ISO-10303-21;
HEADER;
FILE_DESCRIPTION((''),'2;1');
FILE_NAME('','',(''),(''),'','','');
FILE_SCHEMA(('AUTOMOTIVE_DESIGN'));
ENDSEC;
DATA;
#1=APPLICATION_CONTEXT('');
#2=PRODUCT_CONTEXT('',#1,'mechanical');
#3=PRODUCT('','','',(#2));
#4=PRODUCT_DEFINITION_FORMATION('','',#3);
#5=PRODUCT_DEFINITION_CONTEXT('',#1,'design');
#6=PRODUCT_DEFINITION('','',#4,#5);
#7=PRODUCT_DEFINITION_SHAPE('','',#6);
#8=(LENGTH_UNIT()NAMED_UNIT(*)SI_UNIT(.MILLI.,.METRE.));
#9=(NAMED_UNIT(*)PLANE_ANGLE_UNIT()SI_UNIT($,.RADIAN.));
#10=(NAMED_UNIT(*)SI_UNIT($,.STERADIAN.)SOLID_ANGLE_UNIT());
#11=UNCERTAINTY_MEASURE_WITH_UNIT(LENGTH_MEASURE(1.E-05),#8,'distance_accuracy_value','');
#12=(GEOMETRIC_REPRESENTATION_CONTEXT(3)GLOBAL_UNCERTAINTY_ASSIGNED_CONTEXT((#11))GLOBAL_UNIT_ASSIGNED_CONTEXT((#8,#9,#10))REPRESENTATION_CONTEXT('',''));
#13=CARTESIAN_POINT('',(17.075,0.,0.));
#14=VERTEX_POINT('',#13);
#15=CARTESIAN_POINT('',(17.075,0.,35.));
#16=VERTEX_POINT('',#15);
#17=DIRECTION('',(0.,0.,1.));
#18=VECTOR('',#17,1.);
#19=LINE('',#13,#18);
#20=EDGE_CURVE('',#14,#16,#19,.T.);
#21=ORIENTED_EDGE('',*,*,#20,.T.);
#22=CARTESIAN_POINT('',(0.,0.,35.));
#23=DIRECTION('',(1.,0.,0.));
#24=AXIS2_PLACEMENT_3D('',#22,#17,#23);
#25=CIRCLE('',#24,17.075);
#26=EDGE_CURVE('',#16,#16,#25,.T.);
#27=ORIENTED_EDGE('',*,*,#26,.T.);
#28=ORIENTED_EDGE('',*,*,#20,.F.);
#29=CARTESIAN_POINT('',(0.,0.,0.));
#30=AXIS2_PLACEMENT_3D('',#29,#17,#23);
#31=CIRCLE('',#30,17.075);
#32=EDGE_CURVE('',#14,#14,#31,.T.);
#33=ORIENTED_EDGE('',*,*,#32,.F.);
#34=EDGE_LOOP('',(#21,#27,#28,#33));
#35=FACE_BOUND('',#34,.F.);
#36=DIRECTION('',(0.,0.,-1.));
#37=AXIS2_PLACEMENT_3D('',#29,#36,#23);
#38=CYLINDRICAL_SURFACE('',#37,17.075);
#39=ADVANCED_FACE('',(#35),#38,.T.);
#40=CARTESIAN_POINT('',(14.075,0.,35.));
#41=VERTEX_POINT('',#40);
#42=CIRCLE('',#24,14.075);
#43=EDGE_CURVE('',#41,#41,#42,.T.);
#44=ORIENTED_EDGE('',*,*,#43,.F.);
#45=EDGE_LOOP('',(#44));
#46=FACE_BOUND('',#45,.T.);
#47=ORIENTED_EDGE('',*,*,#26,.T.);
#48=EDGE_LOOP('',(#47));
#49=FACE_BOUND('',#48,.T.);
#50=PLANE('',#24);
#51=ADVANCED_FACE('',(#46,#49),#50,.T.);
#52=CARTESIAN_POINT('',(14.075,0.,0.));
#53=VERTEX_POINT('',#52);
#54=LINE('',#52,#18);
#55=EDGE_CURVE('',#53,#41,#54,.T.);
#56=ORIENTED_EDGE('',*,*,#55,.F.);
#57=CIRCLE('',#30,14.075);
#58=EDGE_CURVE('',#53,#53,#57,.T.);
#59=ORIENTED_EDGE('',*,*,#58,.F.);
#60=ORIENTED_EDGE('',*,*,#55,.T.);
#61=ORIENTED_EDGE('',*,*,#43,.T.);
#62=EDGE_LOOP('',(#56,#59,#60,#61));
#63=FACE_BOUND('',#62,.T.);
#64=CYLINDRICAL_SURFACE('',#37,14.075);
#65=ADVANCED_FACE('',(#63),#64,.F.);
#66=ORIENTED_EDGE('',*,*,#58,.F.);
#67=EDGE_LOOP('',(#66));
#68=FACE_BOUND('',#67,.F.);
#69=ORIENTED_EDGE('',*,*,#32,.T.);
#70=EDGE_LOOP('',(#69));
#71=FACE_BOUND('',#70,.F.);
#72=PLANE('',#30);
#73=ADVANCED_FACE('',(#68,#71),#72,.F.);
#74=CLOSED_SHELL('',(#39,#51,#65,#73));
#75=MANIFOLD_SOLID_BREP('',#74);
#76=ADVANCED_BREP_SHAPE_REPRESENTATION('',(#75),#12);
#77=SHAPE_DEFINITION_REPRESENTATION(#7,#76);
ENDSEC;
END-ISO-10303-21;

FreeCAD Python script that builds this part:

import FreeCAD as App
import Part
import Sketcher

V = App.Vector

doc = App.newDocument("Part")
body = doc.addObject("PartDesign::Body", "Body")

sketch1 = body.newObject("Sketcher::SketchObject", "Sketch")
sketch1.AttachmentSupport = (doc.getObject("XY_Plane"), [""])
sketch1.MapMode = "FlatFace"
sketch1.addGeometry([
    Part.Circle(V(0, 0, 0), V(0, 0, 1), 17),
    Part.Circle(V(0, 0, 0), V(0, 0, 1), 14),
], False)
sketch1.addConstraint([
    Sketcher.Constraint("Coincident", 0, 3, -1, 1),
    Sketcher.Constraint("Coincident", 1, 3, -1, 1),
    Sketcher.Constraint("Diameter", 0, 34.15),
    Sketcher.Constraint("Diameter", 1, 28.15),
])
pad1 = body.newObject("PartDesign::Pad", "Pad")
pad1.Profile = sketch1
pad1.Length = 35

doc.recompute()
